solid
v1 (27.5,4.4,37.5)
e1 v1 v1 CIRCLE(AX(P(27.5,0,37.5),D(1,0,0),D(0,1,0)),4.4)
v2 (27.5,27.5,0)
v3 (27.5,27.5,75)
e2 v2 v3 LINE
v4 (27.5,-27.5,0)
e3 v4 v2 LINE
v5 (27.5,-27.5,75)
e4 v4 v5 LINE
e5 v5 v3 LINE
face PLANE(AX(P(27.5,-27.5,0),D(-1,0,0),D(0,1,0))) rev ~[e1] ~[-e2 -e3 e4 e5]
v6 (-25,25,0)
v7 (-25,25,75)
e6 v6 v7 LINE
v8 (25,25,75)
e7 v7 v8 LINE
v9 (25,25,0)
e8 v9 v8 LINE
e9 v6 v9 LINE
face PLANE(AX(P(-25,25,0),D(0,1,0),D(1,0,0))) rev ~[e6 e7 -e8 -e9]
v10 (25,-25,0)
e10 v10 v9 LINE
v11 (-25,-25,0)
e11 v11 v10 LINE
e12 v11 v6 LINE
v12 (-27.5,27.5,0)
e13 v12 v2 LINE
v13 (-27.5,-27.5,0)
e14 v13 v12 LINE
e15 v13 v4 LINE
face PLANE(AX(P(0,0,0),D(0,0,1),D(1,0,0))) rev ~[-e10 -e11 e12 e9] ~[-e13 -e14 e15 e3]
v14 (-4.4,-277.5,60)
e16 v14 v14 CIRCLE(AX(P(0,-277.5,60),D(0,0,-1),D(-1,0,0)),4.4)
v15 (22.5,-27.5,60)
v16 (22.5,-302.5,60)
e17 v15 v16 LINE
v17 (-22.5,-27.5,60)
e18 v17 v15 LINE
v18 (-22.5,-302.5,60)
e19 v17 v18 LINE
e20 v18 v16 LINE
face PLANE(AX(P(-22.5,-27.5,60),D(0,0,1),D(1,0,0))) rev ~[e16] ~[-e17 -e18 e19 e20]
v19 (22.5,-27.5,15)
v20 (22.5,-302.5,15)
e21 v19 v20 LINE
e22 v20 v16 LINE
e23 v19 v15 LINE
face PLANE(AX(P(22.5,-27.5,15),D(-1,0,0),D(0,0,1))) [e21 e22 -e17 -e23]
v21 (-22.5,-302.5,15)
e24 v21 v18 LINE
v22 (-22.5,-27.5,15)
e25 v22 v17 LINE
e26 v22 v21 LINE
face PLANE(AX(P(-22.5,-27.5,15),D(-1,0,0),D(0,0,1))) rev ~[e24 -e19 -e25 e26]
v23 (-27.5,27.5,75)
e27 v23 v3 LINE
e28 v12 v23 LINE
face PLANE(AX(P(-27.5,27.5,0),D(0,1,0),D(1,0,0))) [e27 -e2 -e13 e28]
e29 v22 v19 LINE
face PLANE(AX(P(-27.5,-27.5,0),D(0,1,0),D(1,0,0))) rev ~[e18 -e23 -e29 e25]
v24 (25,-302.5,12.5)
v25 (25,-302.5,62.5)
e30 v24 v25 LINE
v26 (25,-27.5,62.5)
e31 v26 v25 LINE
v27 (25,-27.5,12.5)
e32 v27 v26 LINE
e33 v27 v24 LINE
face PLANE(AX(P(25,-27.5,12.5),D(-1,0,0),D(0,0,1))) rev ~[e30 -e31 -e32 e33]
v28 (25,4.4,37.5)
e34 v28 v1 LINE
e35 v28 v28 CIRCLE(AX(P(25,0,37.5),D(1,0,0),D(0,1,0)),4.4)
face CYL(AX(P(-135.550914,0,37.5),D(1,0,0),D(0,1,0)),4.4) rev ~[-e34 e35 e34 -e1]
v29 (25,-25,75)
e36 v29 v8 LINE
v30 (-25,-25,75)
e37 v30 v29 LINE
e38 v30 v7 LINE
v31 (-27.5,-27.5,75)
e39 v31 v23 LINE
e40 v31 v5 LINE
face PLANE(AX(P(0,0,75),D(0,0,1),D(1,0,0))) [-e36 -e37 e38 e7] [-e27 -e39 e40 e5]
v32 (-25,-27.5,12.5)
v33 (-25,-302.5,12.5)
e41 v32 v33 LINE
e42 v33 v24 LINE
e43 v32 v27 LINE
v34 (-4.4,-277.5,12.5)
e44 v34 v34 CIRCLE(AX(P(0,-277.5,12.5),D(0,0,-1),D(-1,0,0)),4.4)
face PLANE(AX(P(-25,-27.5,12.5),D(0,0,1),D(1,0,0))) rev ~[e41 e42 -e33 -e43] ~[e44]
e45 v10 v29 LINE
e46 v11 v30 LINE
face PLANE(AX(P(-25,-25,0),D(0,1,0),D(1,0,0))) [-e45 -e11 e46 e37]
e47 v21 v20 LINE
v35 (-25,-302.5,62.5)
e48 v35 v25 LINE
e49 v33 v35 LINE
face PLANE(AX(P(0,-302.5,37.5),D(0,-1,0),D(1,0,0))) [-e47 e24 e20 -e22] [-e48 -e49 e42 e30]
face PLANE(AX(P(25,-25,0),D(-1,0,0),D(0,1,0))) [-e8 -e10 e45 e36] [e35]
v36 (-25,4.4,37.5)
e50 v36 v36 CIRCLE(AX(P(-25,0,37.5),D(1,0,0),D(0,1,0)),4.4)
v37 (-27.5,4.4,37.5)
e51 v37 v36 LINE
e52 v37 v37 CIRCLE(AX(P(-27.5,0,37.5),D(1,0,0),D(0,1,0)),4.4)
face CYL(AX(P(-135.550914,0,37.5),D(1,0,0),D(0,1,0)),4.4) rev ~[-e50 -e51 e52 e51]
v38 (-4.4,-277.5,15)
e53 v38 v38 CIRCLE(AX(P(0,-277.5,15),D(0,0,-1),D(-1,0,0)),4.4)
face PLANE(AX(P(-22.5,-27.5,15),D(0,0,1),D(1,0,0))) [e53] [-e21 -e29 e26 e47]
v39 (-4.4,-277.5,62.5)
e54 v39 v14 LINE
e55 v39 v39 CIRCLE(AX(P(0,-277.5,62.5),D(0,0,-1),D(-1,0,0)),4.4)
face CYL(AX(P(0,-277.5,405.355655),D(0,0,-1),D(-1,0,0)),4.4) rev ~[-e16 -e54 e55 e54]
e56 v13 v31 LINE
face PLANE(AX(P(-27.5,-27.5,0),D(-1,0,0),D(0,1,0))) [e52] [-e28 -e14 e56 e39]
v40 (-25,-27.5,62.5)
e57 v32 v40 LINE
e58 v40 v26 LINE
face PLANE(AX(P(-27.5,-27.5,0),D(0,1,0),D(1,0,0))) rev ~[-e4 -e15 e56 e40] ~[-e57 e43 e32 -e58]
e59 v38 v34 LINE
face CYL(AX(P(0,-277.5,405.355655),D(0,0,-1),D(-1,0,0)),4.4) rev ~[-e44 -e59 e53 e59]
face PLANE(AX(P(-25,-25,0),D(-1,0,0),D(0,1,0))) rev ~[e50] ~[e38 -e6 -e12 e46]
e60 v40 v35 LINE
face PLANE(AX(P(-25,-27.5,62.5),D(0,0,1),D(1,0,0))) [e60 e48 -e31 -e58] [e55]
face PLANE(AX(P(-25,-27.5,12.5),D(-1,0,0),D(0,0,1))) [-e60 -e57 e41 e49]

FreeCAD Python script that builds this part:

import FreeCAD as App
import Part
import Sketcher

V = App.Vector
Q = App.Units.Quantity

doc = App.newDocument("Part")
body = doc.addObject("PartDesign::Body", "Body")

# Sketch on XY plane
sketch1 = body.newObject("Sketcher::SketchObject", "Sketch")
sketch1.AttachmentSupport = (doc.getObject("XY_Plane"), [""])
sketch1.MapMode = "FlatFace"
sketch1.addGeometry(Part.LineSegment(V(-28, 28, 0), V(-28, -28, 0)), False)
sketch1.addGeometry(Part.LineSegment(V(-28, -28, 0), V(28, -28, 0)), False)
sketch1.addGeometry(Part.LineSegment(V(28, -28, 0), V(28, 28, 0)), False)
sketch1.addGeometry(Part.LineSegment(V(28, 28, 0), V(-28, 28, 0)), False)
sketch1.addGeometry(Part.LineSegment(V(25, -25, 0), V(-25, -25, 0)), False)
sketch1.addGeometry(Part.LineSegment(V(-25, -25, 0), V(-25, 25, 0)), False)
sketch1.addGeometry(Part.LineSegment(V(-25, 25, 0), V(25, 25, 0)), False)
sketch1.addGeometry(Part.LineSegment(V(25, 25, 0), V(25, -25, 0)), False)
sketch1.addConstraint(Sketcher.Constraint("Coincident", 0, 2, 1, 1))
sketch1.addConstraint(Sketcher.Constraint("Coincident", 1, 2, 2, 1))
sketch1.addConstraint(Sketcher.Constraint("Coincident", 2, 2, 3, 1))
sketch1.addConstraint(Sketcher.Constraint("Coincident", 3, 2, 0, 1))
sketch1.addConstraint(Sketcher.Constraint("Coincident", 4, 2, 5, 1))
sketch1.addConstraint(Sketcher.Constraint("Coincident", 5, 2, 6, 1))
sketch1.addConstraint(Sketcher.Constraint("Coincident", 6, 2, 7, 1))
sketch1.addConstraint(Sketcher.Constraint("Coincident", 7, 2, 4, 1))
sketch1.addConstraint(Sketcher.Constraint("Vertical", 0))
sketch1.addConstraint(Sketcher.Constraint("Horizontal", 1))
sketch1.addConstraint(Sketcher.Constraint("Vertical", 2))
sketch1.addConstraint(Sketcher.Constraint("Horizontal", 3))
sketch1.addConstraint(Sketcher.Constraint("Horizontal", 4))
sketch1.addConstraint(Sketcher.Constraint("Vertical", 5))
sketch1.addConstraint(Sketcher.Constraint("Horizontal", 6))
sketch1.addConstraint(Sketcher.Constraint("Vertical", 7))
sketch1.addConstraint(Sketcher.Constraint("Symmetric", 0, 2, 2, 2, -1, 1))
sketch1.addConstraint(Sketcher.Constraint("Symmetric", 4, 2, 6, 2, -1, 1))
sketch1.addConstraint(Sketcher.Constraint("Equal", 3, 0))
sketch1.addConstraint(Sketcher.Constraint("Equal", 6, 5))
sketch1.addConstraint(Sketcher.Constraint("DistanceX", 1, 1, 1, 2, Q("55 mm")))
sketch1.addConstraint(Sketcher.Constraint("DistanceX", 4, 2, 4, 1, Q("50 mm")))
pad1 = body.newObject("PartDesign::Pad", "Pad")
pad1.Profile = sketch1
pad1.Length = 75

# Sketch on YZ plane
sketch2 = body.newObject("Sketcher::SketchObject", "Sketch001")
sketch2.AttachmentSupport = (doc.getObject("YZ_Plane"), [""])
sketch2.MapMode = "FlatFace"
sketch2.AttachmentOffset = App.Placement(V(0, 0, -27.5), App.Rotation())
sketch2.addGeometry(Part.Circle(V(0, 37.5, 0), V(0, 0, 1), 4.4), False)
sketch2.addConstraint(Sketcher.Constraint("PointOnObject", 0, 3, -2))
sketch2.addConstraint(Sketcher.Constraint("Diameter", 0, Q("8.8 mm")))
sketch2.addConstraint(Sketcher.Constraint("DistanceY", -1, 1, 0, 3, Q("37.5 mm")))
doc.recompute()
hole = body.newObject("PartDesign::Hole", "Hole")
hole.Profile = sketch2
hole.ThreadType = "None"
hole.Diameter = 8.8
hole.DepthType = "ThroughAll"
hole.Reversed = True

# Sketch on XZ plane
sketch3 = body.newObject("Sketcher::SketchObject", "Sketch002")
sketch3.AttachmentSupport = (doc.getObject("XZ_Plane"), [""])
sketch3.MapMode = "FlatFace"
sketch3.AttachmentOffset = App.Placement(V(0, 0, 27.5), App.Rotation())
sketch3.addGeometry(Part.LineSegment(V(-25, 62, 0), V(-25, 12, 0)), False)
sketch3.addGeometry(Part.LineSegment(V(-25, 12, 0), V(25, 12, 0)), False)
sketch3.addGeometry(Part.LineSegment(V(25, 12, 0), V(25, 62, 0)), False)
sketch3.addGeometry(Part.LineSegment(V(25, 62, 0), V(-25, 62, 0)), False)
sketch3.addGeometry(Part.LineSegment(V(22, 15, 0), V(-22, 15, 0)), False)
sketch3.addGeometry(Part.LineSegment(V(-22, 15, 0), V(-22, 60, 0)), False)
sketch3.addGeometry(Part.LineSegment(V(-22, 60, 0), V(22, 60, 0)), False)
sketch3.addGeometry(Part.LineSegment(V(22, 60, 0), V(22, 15, 0)), False)
sketch3.addConstraint(Sketcher.Constraint("Coincident", 0, 2, 1, 1))
sketch3.addConstraint(Sketcher.Constraint("Coincident", 1, 2, 2, 1))
sketch3.addConstraint(Sketcher.Constraint("Coincident", 2, 2, 3, 1))
sketch3.addConstraint(Sketcher.Constraint("Coincident", 3, 2, 0, 1))
sketch3.addConstraint(Sketcher.Constraint("Coincident", 4, 2, 5, 1))
sketch3.addConstraint(Sketcher.Constraint("Coincident", 5, 2, 6, 1))
sketch3.addConstraint(Sketcher.Constraint("Coincident", 6, 2, 7, 1))
sketch3.addConstraint(Sketcher.Constraint("Coincident", 7, 2, 4, 1))
sketch3.addConstraint(Sketcher.Constraint("Vertical", 0))
sketch3.addConstraint(Sketcher.Constraint("Horizontal", 1))
sketch3.addConstraint(Sketcher.Constraint("Vertical", 2))
sketch3.addConstraint(Sketcher.Constraint("Horizontal", 3))
sketch3.addConstraint(Sketcher.Constraint("Horizontal", 4))
sketch3.addConstraint(Sketcher.Constraint("Vertical", 5))
sketch3.addConstraint(Sketcher.Constraint("Horizontal", 6))
sketch3.addConstraint(Sketcher.Constraint("Vertical", 7))
sketch3.addConstraint(Sketcher.Constraint("Equal", 3, 0))
sketch3.addConstraint(Sketcher.Constraint("Equal", 6, 5))
sketch3.addConstraint(Sketcher.Constraint("DistanceX", 1, 1, 1, 2, Q("50 mm")))
sketch3.addConstraint(Sketcher.Constraint("DistanceX", 4, 2, 4, 1, Q("45 mm")))
sketch3.addConstraint(Sketcher.Constraint("DistanceX", 0, 2, -1, 1, Q("25 mm")))
sketch3.addConstraint(Sketcher.Constraint("DistanceY", -1, 1, 4, 2, Q("15 mm")))
sketch3.addConstraint(Sketcher.Constraint("DistanceY", -1, 1, 0, 2, Q("12.5 mm")))
sketch3.addConstraint(Sketcher.Constraint("DistanceX", 4, 2, -1, 1, Q("22.5 mm")))
pad2 = body.newObject("PartDesign::Pad", "Pad001")
pad2.Profile = sketch3
pad2.Length = 275

# Sketch on XY plane
sketch4 = body.newObject("Sketcher::SketchObject", "Sketch003")
sketch4.AttachmentSupport = (doc.getObject("XY_Plane"), [""])
sketch4.MapMode = "FlatFace"
sketch4.AttachmentOffset = App.Placement(V(0, 0, 62.5), App.Rotation())
sketch4.addGeometry(Part.Circle(V(0, -277.5, 0), V(0, 0, 1), 4.4), False)
sketch4.addConstraint(Sketcher.Constraint("PointOnObject", 0, 3, -2))
sketch4.addConstraint(Sketcher.Constraint("Diameter", 0, Q("8.8 mm")))
sketch4.addConstraint(Sketcher.Constraint("DistanceY", 0, 3, -1, 1, Q("277.5 mm")))
doc.recompute()
hole2 = body.newObject("PartDesign::Hole", "Hole001")
hole2.Profile = sketch4
hole2.ThreadType = "None"
hole2.Diameter = 8.8
hole2.DepthType = "ThroughAll"

doc.recompute()
